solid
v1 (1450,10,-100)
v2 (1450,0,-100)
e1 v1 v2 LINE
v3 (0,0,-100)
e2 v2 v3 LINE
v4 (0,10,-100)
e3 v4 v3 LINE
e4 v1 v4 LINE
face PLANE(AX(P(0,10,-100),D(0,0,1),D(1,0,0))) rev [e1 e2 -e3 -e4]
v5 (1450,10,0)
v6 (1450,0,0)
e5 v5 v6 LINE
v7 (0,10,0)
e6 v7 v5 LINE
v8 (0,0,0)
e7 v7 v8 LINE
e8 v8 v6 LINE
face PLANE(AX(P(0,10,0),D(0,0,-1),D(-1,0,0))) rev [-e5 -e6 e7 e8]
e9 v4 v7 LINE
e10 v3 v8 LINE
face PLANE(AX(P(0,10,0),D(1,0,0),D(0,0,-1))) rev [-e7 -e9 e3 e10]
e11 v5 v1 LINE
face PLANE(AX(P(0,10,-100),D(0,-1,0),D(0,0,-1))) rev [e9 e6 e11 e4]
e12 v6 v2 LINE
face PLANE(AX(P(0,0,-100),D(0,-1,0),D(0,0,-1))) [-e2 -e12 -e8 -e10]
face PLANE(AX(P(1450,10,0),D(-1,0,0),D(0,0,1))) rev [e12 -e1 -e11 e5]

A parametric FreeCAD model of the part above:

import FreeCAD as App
import Part
import Sketcher
Q = App.Units.Quantity

doc = App.newDocument("Part")
body = doc.addObject("PartDesign::Body", "Body")

sketch1 = doc.addObject("Sketcher::SketchObject", "Sketch")
body.addObject(sketch1)
sketch1.AttachmentSupport = (doc.XZ_Plane, [""])
sketch1.MapMode = "FlatFace"
sketch1.addGeometry([
    Part.LineSegment(App.Vector(0, -100, 0), App.Vector(0, 0, 0)),
    Part.LineSegment(App.Vector(0, 0, 0), App.Vector(1450, 0, 0)),
    Part.LineSegment(App.Vector(1450, 0, 0), App.Vector(1450, -100, 0)),
    Part.LineSegment(App.Vector(1450, -100, 0), App.Vector(0, -100, 0)),
], False)
sketch1.addConstraint([
    Sketcher.Constraint("Coincident", 0, 2, 1, 1),
    Sketcher.Constraint("Coincident", 1, 2, 2, 1),
    Sketcher.Constraint("Coincident", 2, 2, 3, 1),
    Sketcher.Constraint("Coincident", 3, 2, 0, 1),
    Sketcher.Constraint("Vertical", 0),
    Sketcher.Constraint("Horizontal", 1),
    Sketcher.Constraint("Vertical", 2),
    Sketcher.Constraint("Horizontal", 3),
    Sketcher.Constraint("Coincident", 0, 2, -1, 1),
    Sketcher.Constraint("DistanceX", 1, 1, 1, 2, Q("1450 mm")),
    Sketcher.Constraint("DistanceY", 0, 1, 0, 2, Q("100 mm")),
])
pad1 = doc.addObject("PartDesign::Pad", "Pad")
body.addObject(pad1)
pad1.Profile = sketch1
pad1.Length = 10
pad1.Reversed = True

doc.recompute()
